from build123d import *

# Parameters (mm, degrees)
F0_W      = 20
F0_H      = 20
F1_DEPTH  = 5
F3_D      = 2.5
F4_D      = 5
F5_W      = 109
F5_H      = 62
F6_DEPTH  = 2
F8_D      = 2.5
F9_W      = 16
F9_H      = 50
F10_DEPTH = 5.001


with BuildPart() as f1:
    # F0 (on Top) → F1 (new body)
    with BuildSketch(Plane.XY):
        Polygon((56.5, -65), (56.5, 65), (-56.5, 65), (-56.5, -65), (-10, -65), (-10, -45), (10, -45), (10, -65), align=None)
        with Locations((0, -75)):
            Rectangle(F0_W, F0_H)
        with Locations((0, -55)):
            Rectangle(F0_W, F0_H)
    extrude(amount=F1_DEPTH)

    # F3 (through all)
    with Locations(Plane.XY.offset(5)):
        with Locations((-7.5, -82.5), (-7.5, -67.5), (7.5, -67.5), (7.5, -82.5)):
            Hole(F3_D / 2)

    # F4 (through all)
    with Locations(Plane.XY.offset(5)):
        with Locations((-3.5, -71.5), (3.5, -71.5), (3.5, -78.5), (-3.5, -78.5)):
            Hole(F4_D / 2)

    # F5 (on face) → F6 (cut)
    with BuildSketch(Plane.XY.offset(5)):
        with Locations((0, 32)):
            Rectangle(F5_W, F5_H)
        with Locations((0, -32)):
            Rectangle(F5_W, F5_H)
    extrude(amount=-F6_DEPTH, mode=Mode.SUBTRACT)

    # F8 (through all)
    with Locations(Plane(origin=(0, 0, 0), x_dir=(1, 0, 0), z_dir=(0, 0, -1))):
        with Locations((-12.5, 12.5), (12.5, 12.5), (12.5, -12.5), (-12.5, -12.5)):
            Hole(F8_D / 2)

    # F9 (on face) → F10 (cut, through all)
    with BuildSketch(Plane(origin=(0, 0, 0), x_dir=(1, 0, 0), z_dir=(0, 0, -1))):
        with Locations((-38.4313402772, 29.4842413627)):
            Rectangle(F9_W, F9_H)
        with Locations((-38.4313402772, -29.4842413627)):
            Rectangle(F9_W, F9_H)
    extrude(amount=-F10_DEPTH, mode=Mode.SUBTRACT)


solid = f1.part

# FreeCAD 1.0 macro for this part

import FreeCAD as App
import Part
import Sketcher

doc = App.newDocument("Part")
body = doc.addObject("PartDesign::Body", "Body")

# Sketch on XY plane
sketch1 = body.newObject("Sketcher::SketchObject", "Sketch")
sketch1.AttachmentSupport = (doc.getObject("XY_Plane"), [""])
sketch1.MapMode = "FlatFace"
sketch1.addGeometry(Part.LineSegment(App.Vector(56, -65, 0), App.Vector(56, 65, 0)), False)
sketch1.addGeometry(Part.LineSegment(App.Vector(56, 65, 0), App.Vector(-56, 65, 0)), False)
sketch1.addGeometry(Part.LineSegment(App.Vector(-56, 65, 0), App.Vector(-56, -65, 0)), False)
sketch1.addGeometry(Part.LineSegment(App.Vector(-56, -65, 0), App.Vector(-10, -65, 0)), False)
sketch1.addGeometry(Part.LineSegment(App.Vector(-10, -65, 0), App.Vector(-10, -85, 0)), False)
sketch1.addGeometry(Part.LineSegment(App.Vector(-10, -85, 0), App.Vector(10, -85, 0)), False)
sketch1.addGeometry(Part.LineSegment(App.Vector(10, -85, 0), App.Vector(10, -65, 0)), False)
sketch1.addGeometry(Part.LineSegment(App.Vector(10, -65, 0), App.Vector(56, -65, 0)), False)
sketch1.addConstraint(Sketcher.Constraint("Coincident", 0, 2, 1, 1))
sketch1.addConstraint(Sketcher.Constraint("Coincident", 1, 2, 2, 1))
sketch1.addConstraint(Sketcher.Constraint("Coincident", 2, 2, 3, 1))
sketch1.addConstraint(Sketcher.Constraint("Coincident", 3, 2, 4, 1))
sketch1.addConstraint(Sketcher.Constraint("Coincident", 4, 2, 5, 1))
sketch1.addConstraint(Sketcher.Constraint("Coincident", 5, 2, 6, 1))
sketch1.addConstraint(Sketcher.Constraint("Coincident", 6, 2, 7, 1))
sketch1.addConstraint(Sketcher.Constraint("Coincident", 7, 2, 0, 1))
sketch1.addConstraint(Sketcher.Constraint("Vertical", 0))
sketch1.addConstraint(Sketcher.Constraint("Horizontal", 1))
sketch1.addConstraint(Sketcher.Constraint("Vertical", 2))
sketch1.addConstraint(Sketcher.Constraint("Horizontal", 3))
sketch1.addConstraint(Sketcher.Constraint("Vertical", 4))
sketch1.addConstraint(Sketcher.Constraint("Horizontal", 5))
sketch1.addConstraint(Sketcher.Constraint("Vertical", 6))
sketch1.addConstraint(Sketcher.Constraint("Horizontal", 7))
sketch1.addConstraint(Sketcher.Constraint("Symmetric", 0, 2, 2, 2, -1, 1))
sketch1.addConstraint(Sketcher.Constraint("Symmetric", 3, 2, 6, 2, -2))
sketch1.addConstraint(Sketcher.Constraint("Equal", 5, 4))
sketch1.addConstraint(Sketcher.Constraint("DistanceX", 1, 2, 1, 1, 113.0))
sketch1.addConstraint(Sketcher.Constraint("DistanceX", 5, 1, 5, 2, 20.0))
sketch1.addConstraint(Sketcher.Constraint("DistanceY", 0, 1, 0, 2, 130.0))
pad1 = body.newObject("PartDesign::Pad", "Pad")
pad1.Profile = sketch1
pad1.Length = 5

# Sketch on XY plane
sketch2 = body.newObject("Sketcher::SketchObject", "Sketch001")
sketch2.AttachmentSupport = (doc.getObject("XY_Plane"), [""])
sketch2.MapMode = "FlatFace"
sketch2.AttachmentOffset = App.Placement(App.Vector(0, 0, 5), App.Rotation())
sketch2.addGeometry(Part.Circle(App.Vector(-7.5, -82.5, 0), App.Vector(0, 0, 1), 1.2), False)
sketch2.addGeometry(Part.Circle(App.Vector(-7.5, -67.5, 0), App.Vector(0, 0, 1), 1.2), False)
sketch2.addGeometry(Part.Circle(App.Vector(7.5, -67.5, 0), App.Vector(0, 0, 1), 1.2), False)
sketch2.addGeometry(Part.Circle(App.Vector(7.5, -82.5, 0), App.Vector(0, 0, 1), 1.2), False)
sketch2.addConstraint(Sketcher.Constraint("Equal", 0, 1))
sketch2.addConstraint(Sketcher.Constraint("Equal", 1, 2))
sketch2.addConstraint(Sketcher.Constraint("Equal", 2, 3))
sketch2.addConstraint(Sketcher.Constraint("Symmetric", 1, 3, 2, 3, -2))
sketch2.addConstraint(Sketcher.Constraint("Symmetric", 0, 3, 3, 3, -2))
sketch2.addConstraint(Sketcher.Constraint("Vertical", 0, 3, 1, 3))
sketch2.addConstraint(Sketcher.Constraint("Diameter", 0, 2.5))
sketch2.addConstraint(Sketcher.Constraint("DistanceY", 0, 3, 1, 3, 15.0))
sketch2.addConstraint(Sketcher.Constraint("DistanceX", 1, 3, 2, 3, 15.0))
sketch2.addConstraint(Sketcher.Constraint("DistanceY", 0, 3, -1, 1, 82.5))
doc.recompute()
hole = body.newObject("PartDesign::Hole", "Hole")
hole.Profile = sketch2
hole.ThreadType = "None"
hole.Diameter = 2.5
hole.DepthType = "ThroughAll"

# Sketch on XY plane
sketch3 = body.newObject("Sketcher::SketchObject", "Sketch002")
sketch3.AttachmentSupport = (doc.getObject("XY_Plane"), [""])
sketch3.MapMode = "FlatFace"
sketch3.AttachmentOffset = App.Placement(App.Vector(0, 0, 5), App.Rotation())
sketch3.addGeometry(Part.Circle(App.Vector(-3.5, -71.5, 0), App.Vector(0, 0, 1), 2.5), False)
sketch3.addGeometry(Part.Circle(App.Vector(3.5, -71.5, 0), App.Vector(0, 0, 1), 2.5), False)
sketch3.addGeometry(Part.Circle(App.Vector(3.5, -78.5, 0), App.Vector(0, 0, 1), 2.5), False)
sketch3.addGeometry(Part.Circle(App.Vector(-3.5, -78.5, 0), App.Vector(0, 0, 1), 2.5), False)
sketch3.addConstraint(Sketcher.Constraint("Equal", 0, 1))
sketch3.addConstraint(Sketcher.Constraint("Equal", 1, 2))
sketch3.addConstraint(Sketcher.Constraint("Equal", 2, 3))
sketch3.addConstraint(Sketcher.Constraint("Symmetric", 0, 3, 1, 3, -2))
sketch3.addConstraint(Sketcher.Constraint("Symmetric", 2, 3, 3, 3, -2))
sketch3.addConstraint(Sketcher.Constraint("Vertical", 1, 3, 2, 3))
sketch3.addConstraint(Sketcher.Constraint("Diameter", 0, 5.0))
sketch3.addConstraint(Sketcher.Constraint("DistanceX", 0, 3, 1, 3, 7.0))
sketch3.addConstraint(Sketcher.Constraint("DistanceY", 2, 3, 1, 3, 7.0))
sketch3.addConstraint(Sketcher.Constraint("DistanceY", 0, 3, -1, 1, 71.5))
doc.recompute()
hole2 = body.newObject("PartDesign::Hole", "Hole001")
hole2.Profile = sketch3
hole2.ThreadType = "None"
hole2.Diameter = 5
hole2.DepthType = "ThroughAll"

# Sketch on XY plane
sketch4 = body.newObject("Sketcher::SketchObject", "Sketch003")
sketch4.AttachmentSupport = (doc.getObject("XY_Plane"), [""])
sketch4.MapMode = "FlatFace"
sketch4.AttachmentOffset = App.Placement(App.Vector(0, 0, 5), App.Rotation())
sketch4.addGeometry(Part.LineSegment(App.Vector(-54, 63, 0), App.Vector(-54, 1, 0)), False)
sketch4.addGeometry(Part.LineSegment(App.Vector(-54, 1, 0), App.Vector(54, 1, 0)), False)
sketch4.addGeometry(Part.LineSegment(App.Vector(54, 1, 0), App.Vector(54, 63, 0)), False)
sketch4.addGeometry(Part.LineSegment(App.Vector(54, 63, 0), App.Vector(-54, 63, 0)), False)
sketch4.addGeometry(Part.LineSegment(App.Vector(-54, -1, 0), App.Vector(-54, -63, 0)), False)
sketch4.addGeometry(Part.LineSegment(App.Vector(-54, -63, 0), App.Vector(54, -63, 0)), False)
sketch4.addGeometry(Part.LineSegment(App.Vector(54, -63, 0), App.Vector(54, -1, 0)), False)
sketch4.addGeometry(Part.LineSegment(App.Vector(54, -1, 0), App.Vector(-54, -1, 0)), False)
sketch4.addConstraint(Sketcher.Constraint("Coincident", 0, 2, 1, 1))
sketch4.addConstraint(Sketcher.Constraint("Coincident", 1, 2, 2, 1))
sketch4.addConstraint(Sketcher.Constraint("Coincident", 2, 2, 3, 1))
sketch4.addConstraint(Sketcher.Constraint("Coincident", 3, 2, 0, 1))
sketch4.addConstraint(Sketcher.Constraint("Coincident", 4, 2, 5, 1))
sketch4.addConstraint(Sketcher.Constraint("Coincident", 5, 2, 6, 1))
sketch4.addConstraint(Sketcher.Constraint("Coincident", 6, 2, 7, 1))
sketch4.addConstraint(Sketcher.Constraint("Coincident", 7, 2, 4, 1))
sketch4.addConstraint(Sketcher.Constraint("Vertical", 0))
sketch4.addConstraint(Sketcher.Constraint("Horizontal", 1))
sketch4.addConstraint(Sketcher.Constraint("Vertical", 2))
sketch4.addConstraint(Sketcher.Constraint("Horizontal", 3))
sketch4.addConstraint(Sketcher.Constraint("Vertical", 4))
sketch4.addConstraint(Sketcher.Constraint("Horizontal", 5))
sketch4.addConstraint(Sketcher.Constraint("Vertical", 6))
sketch4.addConstraint(Sketcher.Constraint("Horizontal", 7))
sketch4.addConstraint(Sketcher.Constraint("Symmetric", 2, 2, 4, 2, -1, 1))
sketch4.addConstraint(Sketcher.Constraint("Symmetric", 0, 2, 6, 2, -1, 1))
sketch4.addConstraint(Sketcher.Constraint("Vertical", 3, 2, 4, 2))
sketch4.addConstraint(Sketcher.Constraint("DistanceX", 1, 1, 1, 2, 109.0))
sketch4.addConstraint(Sketcher.Constraint("DistanceY", 0, 2, 0, 1, 62.0))
sketch4.addConstraint(Sketcher.Constraint("DistanceY", -1, 1, 0, 2, 1.0))
pocket1 = body.newObject("PartDesign::Pocket", "Pocket")
pocket1.Profile = sketch4
pocket1.Length = 2

# Sketch on XY plane
sketch5 = body.newObject("Sketcher::SketchObject", "Sketch004")
sketch5.AttachmentSupport = (doc.getObject("XY_Plane"), [""])
sketch5.MapMode = "FlatFace"
sketch5.addGeometry(Part.Circle(App.Vector(-12.5, -12.5, 0), App.Vector(0, 0, 1), 1.2), False)
sketch5.addGeometry(Part.Circle(App.Vector(12.5, -12.5, 0), App.Vector(0, 0, 1), 1.2), False)
sketch5.addGeometry(Part.Circle(App.Vector(12.5, 12.5, 0), App.Vector(0, 0, 1), 1.2), False)
sketch5.addGeometry(Part.Circle(App.Vector(-12.5, 12.5, 0), App.Vector(0, 0, 1), 1.2), False)
sketch5.addConstraint(Sketcher.Constraint("Equal", 0, 1))
sketch5.addConstraint(Sketcher.Constraint("Equal", 1, 2))
sketch5.addConstraint(Sketcher.Constraint("Equal", 2, 3))
sketch5.addConstraint(Sketcher.Constraint("Symmetric", 0, 3, 2, 3, -1, 1))
sketch5.addConstraint(Sketcher.Constraint("Symmetric", 1, 3, 3, 3, -1, 1))
sketch5.addConstraint(Sketcher.Constraint("Symmetric", 0, 3, 1, 3, -2))
sketch5.addConstraint(Sketcher.Constraint("Diameter", 0, 2.5))
sketch5.addConstraint(Sketcher.Constraint("DistanceX", 0, 3, 1, 3, 25.0))
sketch5.addConstraint(Sketcher.Constraint("DistanceY", 1, 3, 2, 3, 25.0))
doc.recompute()
hole3 = body.newObject("PartDesign::Hole", "Hole002")
hole3.Profile = sketch5
hole3.ThreadType = "None"
hole3.Diameter = 2.5
hole3.DepthType = "ThroughAll"
hole3.Reversed = True

# Sketch on XY plane
sketch6 = body.newObject("Sketcher::SketchObject", "Sketch005")
sketch6.AttachmentSupport = (doc.getObject("XY_Plane"), [""])
sketch6.MapMode = "FlatFace"
sketch6.addGeometry(Part.LineSegment(App.Vector(-46, -54, 0), App.Vector(-46, -4, 0)), False)
sketch6.addGeometry(Part.LineSegment(App.Vector(-46, -4, 0), App.Vector(-30, -4, 0)), False)
sketch6.addGeometry(Part.LineSegment(App.Vector(-30, -4, 0), App.Vector(-30, -54, 0)), False)
sketch6.addGeometry(Part.LineSegment(App.Vector(-30, -54, 0), App.Vector(-46, -54, 0)), False)
sketch6.addGeometry(Part.LineSegment(App.Vector(-46, 4, 0), App.Vector(-46, 54, 0)), False)
sketch6.addGeometry(Part.LineSegment(App.Vector(-46, 54, 0), App.Vector(-30, 54, 0)), False)
sketch6.addGeometry(Part.LineSegment(App.Vector(-30, 54, 0), App.Vector(-30, 4, 0)), False)
sketch6.addGeometry(Part.LineSegment(App.Vector(-30, 4, 0), App.Vector(-46, 4, 0)), False)
sketch6.addConstraint(Sketcher.Constraint("Coincident", 0, 2, 1, 1))
sketch6.addConstraint(Sketcher.Constraint("Coincident", 1, 2, 2, 1))
sketch6.addConstraint(Sketcher.Constraint("Coincident", 2, 2, 3, 1))
sketch6.addConstraint(Sketcher.Constraint("Coincident", 3, 2, 0, 1))
sketch6.addConstraint(Sketcher.Constraint("Coincident", 4, 2, 5, 1))
sketch6.addConstraint(Sketcher.Constraint("Coincident", 5, 2, 6, 1))
sketch6.addConstraint(Sketcher.Constraint("Coincident", 6, 2, 7, 1))
sketch6.addConstraint(Sketcher.Constraint("Coincident", 7, 2, 4, 1))
sketch6.addConstraint(Sketcher.Constraint("Vertical", 0))
sketch6.addConstraint(Sketcher.Constraint("Horizontal", 1))
sketch6.addConstraint(Sketcher.Constraint("Vertical", 2))
sketch6.addConstraint(Sketcher.Constraint("Horizontal", 3))
sketch6.addConstraint(Sketcher.Constraint("Vertical", 4))
sketch6.addConstraint(Sketcher.Constraint("Horizontal", 5))
sketch6.addConstraint(Sketcher.Constraint("Vertical", 6))
sketch6.addConstraint(Sketcher.Constraint("Horizontal", 7))
sketch6.addConstraint(Sketcher.Constraint("Symmetric", 3, 2, 4, 2, -1))
sketch6.addConstraint(Sketcher.Constraint("Symmetric", 1, 2, 6, 2, -1))
sketch6.addConstraint(Sketcher.Constraint("DistanceX", 1, 1, 1, 2, 16.0))
sketch6.addConstraint(Sketcher.Constraint("DistanceY", 0, 1, 0, 2, 50.0))
sketch6.addConstraint(Sketcher.Constraint("DistanceX", 0, 2, -1, 1, 46.43134))
sketch6.addConstraint(Sketcher.Constraint("DistanceY", 0, 2, -1, 1, 4.484241))
pocket2 = body.newObject("PartDesign::Pocket", "Pocket001")
pocket2.Profile = sketch6
pocket2.Type = "ThroughAll"
pocket2.Reversed = True

doc.recompute()
